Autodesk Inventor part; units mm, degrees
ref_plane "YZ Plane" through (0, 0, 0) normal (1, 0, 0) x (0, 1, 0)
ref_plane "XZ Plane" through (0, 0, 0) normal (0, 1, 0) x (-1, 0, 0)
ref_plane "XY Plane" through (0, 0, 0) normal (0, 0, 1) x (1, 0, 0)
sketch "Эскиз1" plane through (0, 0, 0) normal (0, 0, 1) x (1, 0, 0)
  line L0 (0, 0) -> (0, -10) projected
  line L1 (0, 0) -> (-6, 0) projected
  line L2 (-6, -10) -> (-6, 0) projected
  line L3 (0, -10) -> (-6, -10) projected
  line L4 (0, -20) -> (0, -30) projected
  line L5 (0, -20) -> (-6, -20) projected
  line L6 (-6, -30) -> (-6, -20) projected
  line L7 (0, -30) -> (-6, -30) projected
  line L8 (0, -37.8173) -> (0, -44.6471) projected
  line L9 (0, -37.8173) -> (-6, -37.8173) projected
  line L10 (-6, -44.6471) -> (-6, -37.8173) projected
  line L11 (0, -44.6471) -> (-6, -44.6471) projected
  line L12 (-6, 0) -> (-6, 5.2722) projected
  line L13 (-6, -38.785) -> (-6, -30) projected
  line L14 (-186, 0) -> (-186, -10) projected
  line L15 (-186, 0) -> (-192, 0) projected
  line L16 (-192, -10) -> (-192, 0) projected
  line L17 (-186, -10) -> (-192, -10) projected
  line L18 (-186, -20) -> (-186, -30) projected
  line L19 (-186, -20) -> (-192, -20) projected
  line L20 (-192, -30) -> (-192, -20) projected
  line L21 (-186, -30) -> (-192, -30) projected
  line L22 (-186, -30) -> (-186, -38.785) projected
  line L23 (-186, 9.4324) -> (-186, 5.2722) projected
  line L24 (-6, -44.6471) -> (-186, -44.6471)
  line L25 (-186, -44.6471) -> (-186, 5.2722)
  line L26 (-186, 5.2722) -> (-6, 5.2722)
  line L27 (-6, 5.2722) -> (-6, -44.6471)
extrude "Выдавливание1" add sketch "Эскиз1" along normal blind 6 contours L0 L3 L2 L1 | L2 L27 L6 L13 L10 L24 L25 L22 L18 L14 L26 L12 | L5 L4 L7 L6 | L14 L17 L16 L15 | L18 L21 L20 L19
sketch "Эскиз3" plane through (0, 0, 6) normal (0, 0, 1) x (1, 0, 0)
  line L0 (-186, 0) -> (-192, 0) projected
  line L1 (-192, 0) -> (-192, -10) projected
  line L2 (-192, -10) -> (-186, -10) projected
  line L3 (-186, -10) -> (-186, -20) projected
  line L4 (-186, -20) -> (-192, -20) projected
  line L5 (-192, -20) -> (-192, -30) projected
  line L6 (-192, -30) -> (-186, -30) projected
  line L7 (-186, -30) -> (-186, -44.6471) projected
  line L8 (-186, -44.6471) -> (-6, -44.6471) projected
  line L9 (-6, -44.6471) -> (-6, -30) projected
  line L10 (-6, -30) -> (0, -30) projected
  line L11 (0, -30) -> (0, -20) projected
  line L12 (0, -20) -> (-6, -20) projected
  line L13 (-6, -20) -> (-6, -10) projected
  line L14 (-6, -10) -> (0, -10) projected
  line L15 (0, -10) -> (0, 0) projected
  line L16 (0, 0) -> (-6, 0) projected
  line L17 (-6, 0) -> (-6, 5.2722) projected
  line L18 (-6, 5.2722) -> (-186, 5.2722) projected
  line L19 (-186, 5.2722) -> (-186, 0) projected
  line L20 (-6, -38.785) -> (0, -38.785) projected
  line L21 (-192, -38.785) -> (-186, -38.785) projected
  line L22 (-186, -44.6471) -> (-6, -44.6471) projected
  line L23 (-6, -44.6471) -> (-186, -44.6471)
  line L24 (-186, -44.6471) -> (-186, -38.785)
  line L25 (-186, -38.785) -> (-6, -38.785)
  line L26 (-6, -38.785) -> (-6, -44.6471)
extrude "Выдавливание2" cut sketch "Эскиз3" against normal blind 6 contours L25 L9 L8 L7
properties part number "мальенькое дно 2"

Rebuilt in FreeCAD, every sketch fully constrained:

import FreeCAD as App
import Part
import Sketcher

V = App.Vector
Q = App.Units.Quantity


def add_polygon(sketch, points):
    """Adds a closed chain of lines whose ends are joined by coincident constraints."""
    first, n = sketch.GeometryCount, len(points)
    for a, b in zip(points, points[1:] + points[:1]):
        sketch.addGeometry(Part.LineSegment(App.Vector(*a, 0), App.Vector(*b, 0)), False)
    for i in range(n):
        sketch.addConstraint(Sketcher.Constraint("Coincident", first + i, 2, first + (i + 1) % n, 1))

doc = App.newDocument("Part")
params = doc.addObject("Spreadsheet::Sheet", "Params")
for row, (alias, value) in enumerate([
    ("sketch1_width", "6 mm"),
    ("sketch1_width2", "180 mm"),
    ("sketch1_height", "10 mm"),
    ("pad1_length", "6 mm"),
    ("sketch2_width", "180 mm"),
    ("pocket1_length", "6 mm"),
], start=1):
    params.set(f"A{row}", alias)
    params.set(f"B{row}", "=" + value)
    params.setAlias(f"B{row}", alias)

body = doc.addObject("PartDesign::Body", "Body")

# Sketch on XY plane
sketch1 = body.newObject("Sketcher::SketchObject", "Sketch")
sketch1.AttachmentSupport = (doc.getObject("XY_Plane"), [""])
sketch1.MapMode = "FlatFace"
add_polygon(sketch1, [(0, -10), (0, 0), (-6, 0), (-6, 5), (-186, 5), (-186, 0), (-192, 0), (-192, -10), (-186, -10), (-186, -20), (-192, -20), (-192, -30), (-186, -30), (-186, -45), (-6, -45), (-6, -30), (0, -30), (0, -20), (-6, -20), (-6, -10)])  # lines 0-19
sketch1.addConstraint(Sketcher.Constraint("Vertical", 0))
sketch1.addConstraint(Sketcher.Constraint("Horizontal", 1))
sketch1.addConstraint(Sketcher.Constraint("Vertical", 2))
sketch1.addConstraint(Sketcher.Constraint("Horizontal", 3))
sketch1.addConstraint(Sketcher.Constraint("Vertical", 4))
sketch1.addConstraint(Sketcher.Constraint("Horizontal", 5))
sketch1.addConstraint(Sketcher.Constraint("Vertical", 6))
sketch1.addConstraint(Sketcher.Constraint("Horizontal", 7))
sketch1.addConstraint(Sketcher.Constraint("Vertical", 8))
sketch1.addConstraint(Sketcher.Constraint("Horizontal", 9))
sketch1.addConstraint(Sketcher.Constraint("Vertical", 10))
sketch1.addConstraint(Sketcher.Constraint("Horizontal", 11))
sketch1.addConstraint(Sketcher.Constraint("Vertical", 12))
sketch1.addConstraint(Sketcher.Constraint("Horizontal", 13))
sketch1.addConstraint(Sketcher.Constraint("Vertical", 14))
sketch1.addConstraint(Sketcher.Constraint("Horizontal", 15))
sketch1.addConstraint(Sketcher.Constraint("Vertical", 16))
sketch1.addConstraint(Sketcher.Constraint("Horizontal", 17))
sketch1.addConstraint(Sketcher.Constraint("Vertical", 18))
sketch1.addConstraint(Sketcher.Constraint("Horizontal", 19))
sketch1.addConstraint(Sketcher.Constraint("Coincident", 0, 2, -1, 1))
sketch1.addConstraint(Sketcher.Constraint("PointOnObject", 4, 2, -1))
sketch1.addConstraint(Sketcher.Constraint("PointOnObject", 15, 2, -2))
sketch1.addConstraint(Sketcher.Constraint("Horizontal", 11, 2, 14, 2))
sketch1.addConstraint(Sketcher.Constraint("Horizontal", 9, 2, 16, 2))
sketch1.addConstraint(Sketcher.Constraint("Horizontal", 7, 2, 18, 2))
sketch1.addConstraint(Sketcher.Constraint("Vertical", 4, 2, 7, 2))
sketch1.addConstraint(Sketcher.Constraint("Vertical", 6, 2, 9, 2))
sketch1.addConstraint(Sketcher.Constraint("Vertical", 8, 2, 11, 2))
sketch1.addConstraint(Sketcher.Constraint("Vertical", 2, 2, 13, 2))
sketch1.addConstraint(Sketcher.Constraint("Vertical", 14, 2, 17, 2))
sketch1.addConstraint(Sketcher.Constraint("Equal", 1, 5))
sketch1.addConstraint(Sketcher.Constraint("Equal", 6, 8))
sketch1.addConstraint(Sketcher.Constraint("Equal", 8, 10))
sketch1.addConstraint(Sketcher.Constraint("DistanceX", 1, 2, 1, 1, Q("6 mm")))
sketch1.addConstraint(Sketcher.Constraint("DistanceX", 3, 2, 3, 1, Q("180 mm")))
sketch1.addConstraint(Sketcher.Constraint("DistanceY", 0, 1, 0, 2, Q("10 mm")))
sketch1.addConstraint(Sketcher.Constraint("DistanceY", 12, 2, 12, 1, Q("14.647 mm")))
sketch1.addConstraint(Sketcher.Constraint("DistanceY", 2, 1, 2, 2, Q("5.2722 mm")))
sketch1.setExpression("Constraints[54]", "Params.sketch1_width")
sketch1.setExpression("Constraints[55]", "Params.sketch1_width2")
sketch1.setExpression("Constraints[56]", "Params.sketch1_height")
pad1 = body.newObject("PartDesign::Pad", "Pad")
pad1.Profile = sketch1
pad1.setExpression("Length", "Params.pad1_length")

# Sketch on XY plane
sketch2 = body.newObject("Sketcher::SketchObject", "Sketch001")
sketch2.AttachmentSupport = (doc.getObject("XY_Plane"), [""])
sketch2.MapMode = "FlatFace"
sketch2.AttachmentOffset = App.Placement(V(0, 0, 6), App.Rotation())
add_polygon(sketch2, [(-6, -39), (-186, -39), (-186, -45), (-6, -45)])  # lines 0-3
sketch2.addConstraint(Sketcher.Constraint("Horizontal", 0))
sketch2.addConstraint(Sketcher.Constraint("Vertical", 1))
sketch2.addConstraint(Sketcher.Constraint("Horizontal", 2))
sketch2.addConstraint(Sketcher.Constraint("Vertical", 3))
sketch2.addConstraint(Sketcher.Constraint("DistanceX", 0, 2, 0, 1, Q("180 mm")))
sketch2.addConstraint(Sketcher.Constraint("DistanceX", 0, 2, -1, 1, Q("186 mm")))
sketch2.addConstraint(Sketcher.Constraint("DistanceY", 1, 2, 1, 1, Q("5.862 mm")))
sketch2.addConstraint(Sketcher.Constraint("DistanceY", 0, 2, -1, 1, Q("38.785 mm")))
sketch2.setExpression("Constraints[8]", "Params.sketch2_width")
pocket1 = body.newObject("PartDesign::Pocket", "Pocket")
pocket1.Profile = sketch2
pocket1.setExpression("Length", "Params.pocket1_length")

doc.recompute()
